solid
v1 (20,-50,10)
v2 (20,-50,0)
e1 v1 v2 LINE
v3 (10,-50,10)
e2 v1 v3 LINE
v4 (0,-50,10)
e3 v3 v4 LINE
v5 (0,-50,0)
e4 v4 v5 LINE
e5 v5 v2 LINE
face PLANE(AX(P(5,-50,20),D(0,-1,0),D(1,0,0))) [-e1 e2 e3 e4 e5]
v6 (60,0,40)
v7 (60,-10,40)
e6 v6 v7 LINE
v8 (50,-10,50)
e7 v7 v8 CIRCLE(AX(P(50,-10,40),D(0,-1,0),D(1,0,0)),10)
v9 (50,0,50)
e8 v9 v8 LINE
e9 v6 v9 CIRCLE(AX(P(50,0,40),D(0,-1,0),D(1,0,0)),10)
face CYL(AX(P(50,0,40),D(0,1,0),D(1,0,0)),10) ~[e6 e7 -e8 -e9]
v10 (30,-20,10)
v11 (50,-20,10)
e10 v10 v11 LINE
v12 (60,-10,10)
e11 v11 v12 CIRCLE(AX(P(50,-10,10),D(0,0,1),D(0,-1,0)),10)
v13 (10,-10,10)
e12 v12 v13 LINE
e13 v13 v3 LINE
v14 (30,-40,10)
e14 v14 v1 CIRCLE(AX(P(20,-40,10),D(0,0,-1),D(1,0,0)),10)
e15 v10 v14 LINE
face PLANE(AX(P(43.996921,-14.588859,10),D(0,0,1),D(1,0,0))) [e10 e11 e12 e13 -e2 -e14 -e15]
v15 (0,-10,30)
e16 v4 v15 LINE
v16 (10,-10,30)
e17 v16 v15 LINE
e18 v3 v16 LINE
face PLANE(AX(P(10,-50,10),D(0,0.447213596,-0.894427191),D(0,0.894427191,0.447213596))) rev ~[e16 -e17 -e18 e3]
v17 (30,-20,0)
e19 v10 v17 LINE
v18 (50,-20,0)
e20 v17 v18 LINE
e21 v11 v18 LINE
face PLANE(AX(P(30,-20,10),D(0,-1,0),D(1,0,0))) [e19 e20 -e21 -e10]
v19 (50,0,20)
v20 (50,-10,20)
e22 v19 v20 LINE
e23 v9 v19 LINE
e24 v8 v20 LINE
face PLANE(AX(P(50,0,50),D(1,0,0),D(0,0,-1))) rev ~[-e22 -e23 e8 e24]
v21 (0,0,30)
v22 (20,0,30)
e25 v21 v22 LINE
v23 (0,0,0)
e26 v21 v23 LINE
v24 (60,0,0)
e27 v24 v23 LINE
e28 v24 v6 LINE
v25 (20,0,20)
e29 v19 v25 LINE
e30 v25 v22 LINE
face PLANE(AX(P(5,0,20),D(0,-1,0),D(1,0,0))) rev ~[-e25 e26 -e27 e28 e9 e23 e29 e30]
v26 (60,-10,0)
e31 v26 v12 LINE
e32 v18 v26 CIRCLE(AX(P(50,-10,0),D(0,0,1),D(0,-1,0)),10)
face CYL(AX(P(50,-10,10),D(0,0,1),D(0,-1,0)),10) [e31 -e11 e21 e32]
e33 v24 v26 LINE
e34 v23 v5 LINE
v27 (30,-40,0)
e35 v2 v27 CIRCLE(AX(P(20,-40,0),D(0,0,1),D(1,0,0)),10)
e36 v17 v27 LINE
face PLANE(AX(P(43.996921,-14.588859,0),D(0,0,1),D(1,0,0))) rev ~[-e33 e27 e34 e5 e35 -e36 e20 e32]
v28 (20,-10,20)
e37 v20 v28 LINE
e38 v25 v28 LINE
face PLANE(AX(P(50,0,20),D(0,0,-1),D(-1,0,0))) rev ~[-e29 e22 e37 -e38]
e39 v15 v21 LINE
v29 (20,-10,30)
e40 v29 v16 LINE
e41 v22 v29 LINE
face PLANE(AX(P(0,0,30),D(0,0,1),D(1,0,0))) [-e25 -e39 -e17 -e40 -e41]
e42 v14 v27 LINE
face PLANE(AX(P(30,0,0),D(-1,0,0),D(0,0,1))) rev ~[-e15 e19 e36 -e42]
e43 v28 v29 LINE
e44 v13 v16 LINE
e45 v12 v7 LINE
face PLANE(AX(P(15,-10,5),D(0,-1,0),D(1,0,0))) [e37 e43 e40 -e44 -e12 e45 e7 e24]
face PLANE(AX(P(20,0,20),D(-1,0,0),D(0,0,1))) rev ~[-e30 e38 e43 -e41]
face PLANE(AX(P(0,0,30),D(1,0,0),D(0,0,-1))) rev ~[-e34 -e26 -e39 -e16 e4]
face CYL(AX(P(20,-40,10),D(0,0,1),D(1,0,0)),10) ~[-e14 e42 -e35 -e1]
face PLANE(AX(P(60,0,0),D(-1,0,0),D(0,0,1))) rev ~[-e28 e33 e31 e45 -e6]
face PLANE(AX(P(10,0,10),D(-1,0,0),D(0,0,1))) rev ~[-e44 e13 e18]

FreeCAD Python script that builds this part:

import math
import FreeCAD as App
import Part
import Sketcher
Q = App.Units.Quantity

doc = App.newDocument("Part")
body = doc.addObject("PartDesign::Body", "Body")

# Sketch on XZ plane
sketch1 = doc.addObject("Sketcher::SketchObject", "Sketch")
body.addObject(sketch1)
sketch1.AttachmentSupport = (doc.XZ_Plane, [""])
sketch1.MapMode = "FlatFace"
sketch1.addGeometry([
    Part.LineSegment(App.Vector(0, 30, 0), App.Vector(0, 0, 0)),  # 0
    Part.LineSegment(App.Vector(0, 0, 0), App.Vector(30, 0, 0)),  # 1
    Part.LineSegment(App.Vector(30, 0, 0), App.Vector(30, 10, 0)),  # 2
    Part.LineSegment(App.Vector(30, 10, 0), App.Vector(10, 10, 0)),  # 3
    Part.LineSegment(App.Vector(10, 10, 0), App.Vector(10, 30, 0)),  # 4
    Part.LineSegment(App.Vector(10, 30, 0), App.Vector(0, 30, 0)),  # 5
], False)
sketch1.addConstraint([
    Sketcher.Constraint("Coincident", 0, 2, 1, 1),
    Sketcher.Constraint("Coincident", 1, 2, 2, 1),
    Sketcher.Constraint("Coincident", 2, 2, 3, 1),
    Sketcher.Constraint("Coincident", 3, 2, 4, 1),
    Sketcher.Constraint("Coincident", 4, 2, 5, 1),
    Sketcher.Constraint("Coincident", 5, 2, 0, 1),
    Sketcher.Constraint("Vertical", 0),
    Sketcher.Constraint("Horizontal", 1),
    Sketcher.Constraint("Vertical", 2),
    Sketcher.Constraint("Horizontal", 3),
    Sketcher.Constraint("Vertical", 4),
    Sketcher.Constraint("Horizontal", 5),
    Sketcher.Constraint("Coincident", 0, 2, -1, 1),
    Sketcher.Constraint("Equal", 1, 0),
    Sketcher.Constraint("Equal", 5, 2),
    Sketcher.Constraint("DistanceX", 1, 1, 1, 2, Q("30 mm")),
    Sketcher.Constraint("DistanceX", 3, 2, 3, 1, Q("20 mm")),
])
pad1 = doc.addObject("PartDesign::Pad", "Pad")
body.addObject(pad1)
pad1.Profile = sketch1
pad1.Length = 50

# Sketch on XZ plane
sketch2 = doc.addObject("Sketcher::SketchObject", "Sketch001")
body.addObject(sketch2)
sketch2.AttachmentSupport = (doc.XZ_Plane, [""])
sketch2.MapMode = "FlatFace"
sketch2.addGeometry([
    Part.LineSegment(App.Vector(0, 0, 0), App.Vector(60, 0, 0)),  # 0
    Part.LineSegment(App.Vector(60, 0, 0), App.Vector(60, 40, 0)),  # 1
    Part.ArcOfCircle(Part.Circle(App.Vector(50, 40, 0), App.Vector(0, 0, 1), 10), math.radians(0), math.radians(90)),  # 2
    Part.LineSegment(App.Vector(50, 50, 0), App.Vector(50, 20, 0)),  # 3
    Part.LineSegment(App.Vector(50, 20, 0), App.Vector(20, 20, 0)),  # 4
    Part.LineSegment(App.Vector(20, 20, 0), App.Vector(20, 30, 0)),  # 5
    Part.LineSegment(App.Vector(20, 30, 0), App.Vector(0, 30, 0)),  # 6
    Part.LineSegment(App.Vector(0, 30, 0), App.Vector(0, 0, 0)),  # 7
], False)
sketch2.addConstraint([
    Sketcher.Constraint("Coincident", 0, 2, 1, 1),
    Sketcher.Constraint("Tangent", 1, 2, 2, 1),
    Sketcher.Constraint("Coincident", 2, 2, 3, 1),
    Sketcher.Constraint("Coincident", 3, 2, 4, 1),
    Sketcher.Constraint("Coincident", 4, 2, 5, 1),
    Sketcher.Constraint("Coincident", 5, 2, 6, 1),
    Sketcher.Constraint("Coincident", 6, 2, 7, 1),
    Sketcher.Constraint("Coincident", 7, 2, 0, 1),
    Sketcher.Constraint("Horizontal", 0),
    Sketcher.Constraint("Vertical", 1),
    Sketcher.Constraint("Vertical", 3),
    Sketcher.Constraint("Horizontal", 4),
    Sketcher.Constraint("Vertical", 5),
    Sketcher.Constraint("Horizontal", 6),
    Sketcher.Constraint("Vertical", 7),
    Sketcher.Constraint("Coincident", 7, 2, -1, 1),
    Sketcher.Constraint("Equal", 4, 3),
    Sketcher.Constraint("Equal", 3, 7),
    Sketcher.Constraint("Radius", 2, Q("10 mm")),
    Sketcher.Constraint("DistanceX", 0, 1, 0, 2, Q("60 mm")),
    Sketcher.Constraint("DistanceX", 4, 2, 4, 1, Q("30 mm")),
    Sketcher.Constraint("DistanceX", 6, 2, 6, 1, Q("20 mm")),
    Sketcher.Constraint("DistanceY", 1, 1, 1, 2, Q("40 mm")),
])
pad2 = doc.addObject("PartDesign::Pad", "Pad001")
body.addObject(pad2)
pad2.Profile = sketch2
pad2.Length = 10

# Sketch on XY plane
sketch3 = doc.addObject("Sketcher::SketchObject", "Sketch002")
body.addObject(sketch3)
sketch3.AttachmentSupport = (doc.XY_Plane, [""])
sketch3.MapMode = "FlatFace"
sketch3.AttachmentOffset = App.Placement(App.Vector(0, 0, 10), App.Rotation())
sketch3.addGeometry([
    Part.LineSegment(App.Vector(30, -20, 0), App.Vector(50, -20, 0)),
    Part.ArcOfCircle(Part.Circle(App.Vector(50, -10, 0), App.Vector(0, 0, 1), 10), math.radians(-90), math.radians(0)),
    Part.LineSegment(App.Vector(60, -10, 0), App.Vector(30, -10, 0)),
    Part.LineSegment(App.Vector(30, -10, 0), App.Vector(30, -20, 0)),
], False)
sketch3.addConstraint([
    Sketcher.Constraint("Tangent", 0, 2, 1, 1),
    Sketcher.Constraint("Coincident", 1, 2, 2, 1),
    Sketcher.Constraint("Coincident", 2, 2, 3, 1),
    Sketcher.Constraint("Coincident", 3, 2, 0, 1),
    Sketcher.Constraint("Horizontal", 0),
    Sketcher.Constraint("Horizontal", 2),
    Sketcher.Constraint("Vertical", 3),
    Sketcher.Constraint("Radius", 1, Q("10 mm")),
    Sketcher.Constraint("DistanceX", 0, 1, 0, 2, Q("20 mm")),
    Sketcher.Constraint("DistanceY", 3, 2, 3, 1, Q("10 mm")),
    Sketcher.Constraint("DistanceX", -1, 1, 1, 3, Q("50 mm")),
    Sketcher.Constraint("DistanceY", 1, 3, -1, 1, Q("10 mm")),
])
pad3 = doc.addObject("PartDesign::Pad", "Pad002")
body.addObject(pad3)
pad3.Profile = sketch3
pad3.Length = 10
pad3.Reversed = True

# Sketch on XY plane
sketch4 = doc.addObject("Sketcher::SketchObject", "Sketch003")
body.addObject(sketch4)
sketch4.AttachmentSupport = (doc.XY_Plane, [""])
sketch4.MapMode = "FlatFace"
sketch4.AttachmentOffset = App.Placement(App.Vector(0, 0, 10), App.Rotation())
sketch4.addGeometry([
    Part.LineSegment(App.Vector(10, -20, 0), App.Vector(10, -50, 0)),
    Part.LineSegment(App.Vector(10, -50, 0), App.Vector(30, -50, 0)),
    Part.LineSegment(App.Vector(30, -50, 0), App.Vector(30, -20, 0)),
    Part.LineSegment(App.Vector(30, -20, 0), App.Vector(10, -20, 0)),
], False)
sketch4.addConstraint([
    Sketcher.Constraint("Coincident", 0, 2, 1, 1),
    Sketcher.Constraint("Coincident", 1, 2, 2, 1),
    Sketcher.Constraint("Coincident", 2, 2, 3, 1),
    Sketcher.Constraint("Coincident", 3, 2, 0, 1),
    Sketcher.Constraint("Vertical", 0),
    Sketcher.Constraint("Horizontal", 1),
    Sketcher.Constraint("Vertical", 2),
    Sketcher.Constraint("Horizontal", 3),
    Sketcher.Constraint("DistanceX", 1, 1, 1, 2, Q("20 mm")),
    Sketcher.Constraint("DistanceY", 0, 2, 0, 1, Q("30 mm")),
    Sketcher.Constraint("DistanceX", -1, 1, 0, 2, Q("10 mm")),
    Sketcher.Constraint("DistanceY", 0, 2, -1, 1, Q("50 mm")),
])
pad4 = doc.addObject("PartDesign::Pad", "Pad003")
body.addObject(pad4)
pad4.Profile = sketch4
pad4.Length = 10
pad4.Reversed = True

# Sketch on XY plane
sketch5 = doc.addObject("Sketcher::SketchObject", "Sketch004")
body.addObject(sketch5)
sketch5.AttachmentSupport = (doc.XY_Plane, [""])
sketch5.MapMode = "FlatFace"
sketch5.AttachmentOffset = App.Placement(App.Vector(0, 0, 10), App.Rotation())
sketch5.addGeometry([
    Part.LineSegment(App.Vector(20, -50, 0), App.Vector(30, -50, 0)),
    Part.LineSegment(App.Vector(30, -50, 0), App.Vector(30, -40, 0)),
    Part.ArcOfCircle(Part.Circle(App.Vector(20, -40, 0), App.Vector(0, 0, 1), 10), math.radians(-90), math.radians(0)),
], False)
sketch5.addConstraint([
    Sketcher.Constraint("Coincident", 0, 2, 1, 1),
    Sketcher.Constraint("Tangent", 1, 2, 2, 2),
    Sketcher.Constraint("Tangent", 2, 1, 0, 1),
    Sketcher.Constraint("Horizontal", 0),
    Sketcher.Constraint("Vertical", 1),
    Sketcher.Constraint("Radius", 2, Q("10 mm")),
    Sketcher.Constraint("DistanceX", -1, 1, 2, 3, Q("20 mm")),
    Sketcher.Constraint("DistanceY", 2, 3, -1, 1, Q("40 mm")),
])
pocket1 = doc.addObject("PartDesign::Pocket", "Pocket")
body.addObject(pocket1)
pocket1.Profile = sketch5
pocket1.Length = 25

# Sketch on YZ plane
sketch6 = doc.addObject("Sketcher::SketchObject", "Sketch005")
body.addObject(sketch6)
sketch6.AttachmentSupport = (doc.YZ_Plane, [""])
sketch6.MapMode = "FlatFace"
sketch6.AttachmentOffset = App.Placement(App.Vector(0, 0, 10), App.Rotation())
sketch6.addGeometry([
    Part.LineSegment(App.Vector(-50, 10, 0), App.Vector(-10, 30, 0)),
    Part.LineSegment(App.Vector(-10, 30, 0), App.Vector(-50, 30, 0)),
    Part.LineSegment(App.Vector(-50, 30, 0), App.Vector(-50, 10, 0)),
], False)
sketch6.addConstraint([
    Sketcher.Constraint("Coincident", 0, 2, 1, 1),
    Sketcher.Constraint("Coincident", 1, 2, 2, 1),
    Sketcher.Constraint("Coincident", 2, 2, 0, 1),
    Sketcher.Constraint("Horizontal", 1),
    Sketcher.Constraint("Vertical", 2),
    Sketcher.Constraint("DistanceX", 1, 2, 1, 1, Q("40 mm")),
    Sketcher.Constraint("DistanceY", 2, 2, 2, 1, Q("20 mm")),
    Sketcher.Constraint("DistanceX", 0, 2, -1, 1, Q("10 mm")),
    Sketcher.Constraint("DistanceY", -1, 1, 0, 2, Q("30 mm")),
])
pocket2 = doc.addObject("PartDesign::Pocket", "Pocket001")
body.addObject(pocket2)
pocket2.Profile = sketch6
pocket2.Length = 25

doc.recompute()
